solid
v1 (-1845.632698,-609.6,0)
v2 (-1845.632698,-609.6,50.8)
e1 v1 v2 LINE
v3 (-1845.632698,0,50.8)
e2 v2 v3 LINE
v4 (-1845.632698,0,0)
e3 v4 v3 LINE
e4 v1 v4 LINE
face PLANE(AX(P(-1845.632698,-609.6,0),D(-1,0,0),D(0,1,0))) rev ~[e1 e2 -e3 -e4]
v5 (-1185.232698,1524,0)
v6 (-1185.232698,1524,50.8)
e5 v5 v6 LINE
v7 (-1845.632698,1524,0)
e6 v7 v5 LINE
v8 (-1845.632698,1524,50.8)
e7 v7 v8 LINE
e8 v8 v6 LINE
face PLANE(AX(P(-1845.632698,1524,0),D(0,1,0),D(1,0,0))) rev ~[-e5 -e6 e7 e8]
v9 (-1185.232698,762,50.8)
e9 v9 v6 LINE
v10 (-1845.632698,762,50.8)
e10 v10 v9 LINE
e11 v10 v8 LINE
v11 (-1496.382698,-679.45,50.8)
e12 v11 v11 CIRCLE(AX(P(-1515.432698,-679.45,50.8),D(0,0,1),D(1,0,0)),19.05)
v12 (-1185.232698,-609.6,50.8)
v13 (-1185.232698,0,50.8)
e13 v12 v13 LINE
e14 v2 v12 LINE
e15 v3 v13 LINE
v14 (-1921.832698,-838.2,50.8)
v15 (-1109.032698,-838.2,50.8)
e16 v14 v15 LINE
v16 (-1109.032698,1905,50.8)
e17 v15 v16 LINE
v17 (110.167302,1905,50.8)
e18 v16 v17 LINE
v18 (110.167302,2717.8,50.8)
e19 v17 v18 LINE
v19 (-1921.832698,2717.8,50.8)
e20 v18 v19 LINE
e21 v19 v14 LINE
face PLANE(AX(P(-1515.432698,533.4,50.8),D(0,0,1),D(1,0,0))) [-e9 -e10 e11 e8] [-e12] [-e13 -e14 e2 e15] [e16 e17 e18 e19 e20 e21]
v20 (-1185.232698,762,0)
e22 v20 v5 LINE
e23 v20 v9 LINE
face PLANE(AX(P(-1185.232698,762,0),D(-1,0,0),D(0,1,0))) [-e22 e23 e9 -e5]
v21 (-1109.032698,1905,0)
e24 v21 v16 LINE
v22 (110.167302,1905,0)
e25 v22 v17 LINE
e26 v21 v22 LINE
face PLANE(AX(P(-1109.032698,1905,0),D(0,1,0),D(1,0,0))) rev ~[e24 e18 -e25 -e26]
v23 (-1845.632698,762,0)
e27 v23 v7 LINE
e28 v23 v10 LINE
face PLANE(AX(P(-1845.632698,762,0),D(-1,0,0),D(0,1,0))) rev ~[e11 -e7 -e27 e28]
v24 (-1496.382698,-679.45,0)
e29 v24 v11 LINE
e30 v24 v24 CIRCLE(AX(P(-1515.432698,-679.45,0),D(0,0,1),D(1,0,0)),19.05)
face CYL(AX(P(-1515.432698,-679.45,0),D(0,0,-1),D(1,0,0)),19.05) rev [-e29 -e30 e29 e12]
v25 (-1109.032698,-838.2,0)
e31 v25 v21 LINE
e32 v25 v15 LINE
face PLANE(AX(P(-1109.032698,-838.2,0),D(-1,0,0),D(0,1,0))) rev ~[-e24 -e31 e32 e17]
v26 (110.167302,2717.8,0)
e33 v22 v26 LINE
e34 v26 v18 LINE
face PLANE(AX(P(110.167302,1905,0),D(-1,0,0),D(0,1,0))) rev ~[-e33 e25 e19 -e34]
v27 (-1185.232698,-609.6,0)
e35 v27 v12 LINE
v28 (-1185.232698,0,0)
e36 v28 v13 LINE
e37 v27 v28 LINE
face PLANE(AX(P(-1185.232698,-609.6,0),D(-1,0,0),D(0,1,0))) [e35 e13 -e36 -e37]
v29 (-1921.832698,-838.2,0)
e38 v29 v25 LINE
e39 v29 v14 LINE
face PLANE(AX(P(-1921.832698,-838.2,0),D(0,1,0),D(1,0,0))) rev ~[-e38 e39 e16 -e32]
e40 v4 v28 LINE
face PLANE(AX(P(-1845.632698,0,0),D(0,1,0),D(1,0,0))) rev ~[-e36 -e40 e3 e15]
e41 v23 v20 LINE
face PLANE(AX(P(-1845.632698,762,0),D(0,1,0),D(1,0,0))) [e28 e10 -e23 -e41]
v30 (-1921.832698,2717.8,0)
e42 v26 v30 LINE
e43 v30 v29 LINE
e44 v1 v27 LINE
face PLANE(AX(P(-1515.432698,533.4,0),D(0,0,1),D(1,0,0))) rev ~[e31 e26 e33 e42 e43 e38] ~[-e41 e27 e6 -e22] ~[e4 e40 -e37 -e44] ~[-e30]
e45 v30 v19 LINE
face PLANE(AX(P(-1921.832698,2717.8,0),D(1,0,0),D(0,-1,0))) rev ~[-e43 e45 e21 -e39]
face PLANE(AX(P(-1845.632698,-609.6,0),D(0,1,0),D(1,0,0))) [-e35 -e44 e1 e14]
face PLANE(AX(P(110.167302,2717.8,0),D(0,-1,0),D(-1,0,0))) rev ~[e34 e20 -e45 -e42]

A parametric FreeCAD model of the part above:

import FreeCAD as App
import Part
import Sketcher
from FreeCAD import Vector
Q = App.Units.Quantity


def add_polygon(sketch, points):
    """Adds a closed chain of lines whose ends are joined by coincident constraints."""
    first, n = sketch.GeometryCount, len(points)
    for a, b in zip(points, points[1:] + points[:1]):
        sketch.addGeometry(Part.LineSegment(App.Vector(*a, 0), App.Vector(*b, 0)), False)
    for i in range(n):
        sketch.addConstraint(Sketcher.Constraint("Coincident", first + i, 2, first + (i + 1) % n, 1))

doc = App.newDocument("Part")
params = doc.addObject("Spreadsheet::Sheet", "Params")
for row, (alias, value) in enumerate([
    ("sketch1_diameter", "1.5 in"),
    ("sketch1_width", "32 in"),
    ("sketch1_width2", "48 in"),
    ("sketch1_width3", "26 in"),
    ("sketch1_height", "108 in"),
    ("pad1_length", "2 in"),
], start=1):
    params.set(f"A{row}", alias)
    params.set(f"B{row}", "=" + value)
    params.setAlias(f"B{row}", alias)

body = doc.addObject("PartDesign::Body", "Body")

# Sketch on XY plane
sketch1 = body.newObject("Sketcher::SketchObject", "Sketch")
sketch1.AttachmentSupport = (doc.getObject("XY_Plane"), [""])
sketch1.MapMode = "FlatFace"
add_polygon(sketch1, [(-1922, -838), (-1109, -838), (-1109, 1905), (110, 1905), (110, 2718), (-1922, 2718)])  # lines 0-5
sketch1.addGeometry(Part.Circle(Vector(-1515, -679, 0), Vector(0, 0, 1), 19), False)  # 6
add_polygon(sketch1, [(-1185, -610), (-1846, -610), (-1846, 0), (-1185, 0)])  # lines 7-10
add_polygon(sketch1, [(-1185, 762), (-1846, 762), (-1846, 1524), (-1185, 1524)])  # lines 11-14
sketch1.addConstraint([
    Sketcher.Constraint("Horizontal", 0),
    Sketcher.Constraint("Vertical", 1),
    Sketcher.Constraint("Horizontal", 2),
    Sketcher.Constraint("Vertical", 3),
    Sketcher.Constraint("Horizontal", 4),
    Sketcher.Constraint("Vertical", 5),
    Sketcher.Constraint("Horizontal", 7),
    Sketcher.Constraint("Vertical", 8),
    Sketcher.Constraint("Horizontal", 9),
    Sketcher.Constraint("Vertical", 10),
    Sketcher.Constraint("Horizontal", 11),
    Sketcher.Constraint("Vertical", 12),
    Sketcher.Constraint("Horizontal", 13),
    Sketcher.Constraint("Vertical", 14),
    Sketcher.Constraint("PointOnObject", 8, 2, -1),
    Sketcher.Constraint("Vertical", 8, 2, 11, 2),
    Sketcher.Constraint("Vertical", 10, 2, 13, 2),
    Sketcher.Constraint("Equal", 0, 3),
    Sketcher.Constraint("Diameter", 6, Q("1.5 in")),
    Sketcher.Constraint("DistanceX", 0, 1, 0, 2, Q("32 in")),
    Sketcher.Constraint("DistanceX", 2, 1, 2, 2, Q("48 in")),
    Sketcher.Constraint("DistanceX", 7, 2, 7, 1, Q("26 in")),
    Sketcher.Constraint("DistanceY", 1, 1, 1, 2, Q("108 in")),
    Sketcher.Constraint("DistanceY", 8, 1, 8, 2, Q("24 in")),
    Sketcher.Constraint("DistanceY", 12, 1, 12, 2, Q("30 in")),
    Sketcher.Constraint("DistanceY", 0, 2, -1, 1, Q("33 in")),
    Sketcher.Constraint("DistanceY", -1, 1, 11, 2, Q("30 in")),
    Sketcher.Constraint("DistanceX", 6, 3, 0, 2, Q("16 in")),
    Sketcher.Constraint("DistanceX", 5, 2, 7, 2, Q("3 in")),
    Sketcher.Constraint("DistanceY", 6, 3, -1, 1, Q("26.75 in")),
    Sketcher.Constraint("DistanceX", 6, 3, -1, 1, 1515.432698),
])
sketch1.setExpression("Constraints[32]", "Params.sketch1_diameter")
sketch1.setExpression("Constraints[33]", "Params.sketch1_width")
sketch1.setExpression("Constraints[34]", "Params.sketch1_width2")
sketch1.setExpression("Constraints[35]", "Params.sketch1_width3")
sketch1.setExpression("Constraints[36]", "Params.sketch1_height")
pad1 = body.newObject("PartDesign::Pad", "Pad")
pad1.Profile = sketch1
pad1.setExpression("Length", "Params.pad1_length")

doc.recompute()
